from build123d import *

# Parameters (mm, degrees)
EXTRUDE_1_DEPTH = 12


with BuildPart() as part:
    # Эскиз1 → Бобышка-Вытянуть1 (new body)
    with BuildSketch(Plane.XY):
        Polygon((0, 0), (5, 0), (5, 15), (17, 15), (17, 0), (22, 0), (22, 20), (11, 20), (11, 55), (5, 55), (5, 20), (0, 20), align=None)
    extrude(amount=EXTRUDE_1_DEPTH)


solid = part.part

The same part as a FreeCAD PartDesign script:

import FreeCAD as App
import Part
import Sketcher
Q = App.Units.Quantity

doc = App.newDocument("Part")
body = doc.addObject("PartDesign::Body", "Body")

# Sketch on XY plane
sketch1 = body.newObject("Sketcher::SketchObject", "Sketch")
sketch1.AttachmentSupport = (doc.getObject("XY_Plane"), [""])
sketch1.MapMode = "FlatFace"
sketch1.addGeometry(Part.LineSegment(App.Vector(0, 0, 0), App.Vector(5, 0, 0)), False)
sketch1.addGeometry(Part.LineSegment(App.Vector(5, 0, 0), App.Vector(5, 15, 0)), False)
sketch1.addGeometry(Part.LineSegment(App.Vector(5, 15, 0), App.Vector(17, 15, 0)), False)
sketch1.addGeometry(Part.LineSegment(App.Vector(17, 15, 0), App.Vector(17, 0, 0)), False)
sketch1.addGeometry(Part.LineSegment(App.Vector(17, 0, 0), App.Vector(22, 0, 0)), False)
sketch1.addGeometry(Part.LineSegment(App.Vector(22, 0, 0), App.Vector(22, 20, 0)), False)
sketch1.addGeometry(Part.LineSegment(App.Vector(22, 20, 0), App.Vector(11, 20, 0)), False)
sketch1.addGeometry(Part.LineSegment(App.Vector(11, 20, 0), App.Vector(11, 55, 0)), False)
sketch1.addGeometry(Part.LineSegment(App.Vector(11, 55, 0), App.Vector(5, 55, 0)), False)
sketch1.addGeometry(Part.LineSegment(App.Vector(5, 55, 0), App.Vector(5, 20, 0)), False)
sketch1.addGeometry(Part.LineSegment(App.Vector(5, 20, 0), App.Vector(0, 20, 0)), False)
sketch1.addGeometry(Part.LineSegment(App.Vector(0, 20, 0), App.Vector(0, 0, 0)), False)
sketch1.addConstraint(Sketcher.Constraint("Coincident", 0, 2, 1, 1))
sketch1.addConstraint(Sketcher.Constraint("Coincident", 1, 2, 2, 1))
sketch1.addConstraint(Sketcher.Constraint("Coincident", 2, 2, 3, 1))
sketch1.addConstraint(Sketcher.Constraint("Coincident", 3, 2, 4, 1))
sketch1.addConstraint(Sketcher.Constraint("Coincident", 4, 2, 5, 1))
sketch1.addConstraint(Sketcher.Constraint("Coincident", 5, 2, 6, 1))
sketch1.addConstraint(Sketcher.Constraint("Coincident", 6, 2, 7, 1))
sketch1.addConstraint(Sketcher.Constraint("Coincident", 7, 2, 8, 1))
sketch1.addConstraint(Sketcher.Constraint("Coincident", 8, 2, 9, 1))
sketch1.addConstraint(Sketcher.Constraint("Coincident", 9, 2, 10, 1))
sketch1.addConstraint(Sketcher.Constraint("Coincident", 10, 2, 11, 1))
sketch1.addConstraint(Sketcher.Constraint("Coincident", 11, 2, 0, 1))
sketch1.addConstraint(Sketcher.Constraint("Horizontal", 0))
sketch1.addConstraint(Sketcher.Constraint("Vertical", 1))
sketch1.addConstraint(Sketcher.Constraint("Horizontal", 2))
sketch1.addConstraint(Sketcher.Constraint("Vertical", 3))
sketch1.addConstraint(Sketcher.Constraint("Horizontal", 4))
sketch1.addConstraint(Sketcher.Constraint("Vertical", 5))
sketch1.addConstraint(Sketcher.Constraint("Horizontal", 6))
sketch1.addConstraint(Sketcher.Constraint("Vertical", 7))
sketch1.addConstraint(Sketcher.Constraint("Horizontal", 8))
sketch1.addConstraint(Sketcher.Constraint("Vertical", 9))
sketch1.addConstraint(Sketcher.Constraint("Horizontal", 10))
sketch1.addConstraint(Sketcher.Constraint("Vertical", 11))
sketch1.addConstraint(Sketcher.Constraint("Coincident", 11, 2, -1, 1))
sketch1.addConstraint(Sketcher.Constraint("PointOnObject", 3, 2, -1))
sketch1.addConstraint(Sketcher.Constraint("Horizontal", 6, 2, 9, 2))
sketch1.addConstraint(Sketcher.Constraint("Vertical", 1, 2, 8, 2))
sketch1.addConstraint(Sketcher.Constraint("Equal", 0, 4))
sketch1.addConstraint(Sketcher.Constraint("DistanceX", 0, 1, 0, 2, Q("5 mm")))
sketch1.addConstraint(Sketcher.Constraint("DistanceX", 2, 1, 2, 2, Q("12 mm")))
sketch1.addConstraint(Sketcher.Constraint("DistanceX", 6, 2, 6, 1, Q("11 mm")))
sketch1.addConstraint(Sketcher.Constraint("DistanceY", 1, 1, 1, 2, Q("15 mm")))
sketch1.addConstraint(Sketcher.Constraint("DistanceY", 5, 1, 5, 2, Q("20 mm")))
sketch1.addConstraint(Sketcher.Constraint("DistanceY", 7, 1, 7, 2, Q("35 mm")))
pad1 = body.newObject("PartDesign::Pad", "Pad")
pad1.Profile = sketch1
pad1.Length = 12

doc.recompute()
